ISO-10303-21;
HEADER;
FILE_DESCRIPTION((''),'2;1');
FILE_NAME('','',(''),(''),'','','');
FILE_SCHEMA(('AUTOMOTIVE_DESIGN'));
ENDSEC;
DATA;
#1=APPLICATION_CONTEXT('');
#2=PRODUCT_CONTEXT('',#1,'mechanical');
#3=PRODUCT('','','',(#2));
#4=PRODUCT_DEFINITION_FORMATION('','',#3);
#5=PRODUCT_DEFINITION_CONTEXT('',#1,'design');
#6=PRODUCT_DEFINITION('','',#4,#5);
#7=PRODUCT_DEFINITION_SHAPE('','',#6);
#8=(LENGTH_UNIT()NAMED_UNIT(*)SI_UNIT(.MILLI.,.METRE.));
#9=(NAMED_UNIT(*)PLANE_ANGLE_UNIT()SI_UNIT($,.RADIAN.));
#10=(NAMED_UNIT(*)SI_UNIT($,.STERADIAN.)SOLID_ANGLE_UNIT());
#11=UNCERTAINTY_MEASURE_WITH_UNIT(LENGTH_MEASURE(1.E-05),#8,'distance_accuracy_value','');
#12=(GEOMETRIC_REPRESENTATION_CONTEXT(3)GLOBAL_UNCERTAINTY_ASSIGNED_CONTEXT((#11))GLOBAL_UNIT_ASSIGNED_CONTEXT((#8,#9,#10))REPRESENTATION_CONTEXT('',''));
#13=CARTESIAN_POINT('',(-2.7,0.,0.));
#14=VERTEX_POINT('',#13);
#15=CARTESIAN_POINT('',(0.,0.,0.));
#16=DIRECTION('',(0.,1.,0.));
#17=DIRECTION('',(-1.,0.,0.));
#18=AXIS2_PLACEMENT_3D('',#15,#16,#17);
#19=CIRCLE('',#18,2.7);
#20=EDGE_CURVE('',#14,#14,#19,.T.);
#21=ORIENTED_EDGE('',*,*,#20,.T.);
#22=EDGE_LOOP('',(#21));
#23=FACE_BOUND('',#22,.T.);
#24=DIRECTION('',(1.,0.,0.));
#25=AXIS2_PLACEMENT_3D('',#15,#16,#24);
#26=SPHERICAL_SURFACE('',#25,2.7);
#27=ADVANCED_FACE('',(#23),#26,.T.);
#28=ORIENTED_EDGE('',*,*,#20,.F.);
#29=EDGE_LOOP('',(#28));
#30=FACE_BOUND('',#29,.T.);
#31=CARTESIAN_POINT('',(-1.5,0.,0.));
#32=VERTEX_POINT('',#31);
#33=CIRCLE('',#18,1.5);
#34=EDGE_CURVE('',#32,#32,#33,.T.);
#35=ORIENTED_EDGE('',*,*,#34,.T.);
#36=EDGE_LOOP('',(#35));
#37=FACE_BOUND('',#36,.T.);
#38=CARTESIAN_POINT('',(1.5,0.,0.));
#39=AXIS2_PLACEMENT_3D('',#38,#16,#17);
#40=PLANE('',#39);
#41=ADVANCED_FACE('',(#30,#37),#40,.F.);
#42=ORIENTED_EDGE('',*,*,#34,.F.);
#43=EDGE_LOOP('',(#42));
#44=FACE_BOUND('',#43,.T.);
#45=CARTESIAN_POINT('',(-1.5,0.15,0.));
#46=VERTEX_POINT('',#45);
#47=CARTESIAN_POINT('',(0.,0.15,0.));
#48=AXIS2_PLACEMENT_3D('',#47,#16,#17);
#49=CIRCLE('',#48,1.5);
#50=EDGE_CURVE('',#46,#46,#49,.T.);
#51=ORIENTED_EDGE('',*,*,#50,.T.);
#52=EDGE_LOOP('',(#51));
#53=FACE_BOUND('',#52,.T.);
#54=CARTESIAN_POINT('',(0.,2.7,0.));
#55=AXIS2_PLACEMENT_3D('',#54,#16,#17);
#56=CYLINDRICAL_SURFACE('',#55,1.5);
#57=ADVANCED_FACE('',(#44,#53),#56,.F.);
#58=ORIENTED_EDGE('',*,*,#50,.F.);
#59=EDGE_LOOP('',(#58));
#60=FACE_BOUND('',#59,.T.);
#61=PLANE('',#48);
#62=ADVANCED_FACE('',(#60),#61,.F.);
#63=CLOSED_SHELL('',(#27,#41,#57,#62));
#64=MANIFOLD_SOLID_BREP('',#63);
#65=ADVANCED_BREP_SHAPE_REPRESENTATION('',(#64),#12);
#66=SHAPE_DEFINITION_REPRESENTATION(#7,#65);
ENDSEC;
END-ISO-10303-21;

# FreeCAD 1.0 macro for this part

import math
import FreeCAD as App
import Part
import Sketcher
from FreeCAD import Vector

doc = App.newDocument("Part")
body = doc.addObject("PartDesign::Body", "Body")

sketch1 = body.newObject("Sketcher::SketchObject", "Sketch")
sketch1.AttachmentSupport = (doc.getObject("XY_Plane"), [""])
sketch1.MapMode = "FlatFace"
sketch1.addGeometry([
    Part.LineSegment(Vector(0, 2.7, 0), Vector(0, 0.15, 0)),
    Part.LineSegment(Vector(0, 0.15, 0), Vector(1.5, 0.15, 0)),
    Part.LineSegment(Vector(1.5, 0.15, 0), Vector(1.5, 0, 0)),
    Part.LineSegment(Vector(1.5, 0, 0), Vector(2.7, 0, 0)),
    Part.ArcOfCircle(Part.Circle(Vector(0, 0, 0), Vector(0, 0, 1), 2.7), math.radians(0), math.radians(90)),
], False)
sketch1.addConstraint([
    Sketcher.Constraint("Coincident", 0, 2, 1, 1),
    Sketcher.Constraint("Coincident", 1, 2, 2, 1),
    Sketcher.Constraint("Coincident", 2, 2, 3, 1),
    Sketcher.Constraint("Coincident", 3, 2, 4, 1),
    Sketcher.Constraint("Coincident", 4, 2, 0, 1),
    Sketcher.Constraint("Vertical", 0),
    Sketcher.Constraint("Horizontal", 1),
    Sketcher.Constraint("Vertical", 2),
    Sketcher.Constraint("Horizontal", 3),
    Sketcher.Constraint("Coincident", 4, 3, -1, 1),
    Sketcher.Constraint("PointOnObject", 0, 2, -2),
    Sketcher.Constraint("PointOnObject", 2, 2, -1),
    Sketcher.Constraint("Radius", 4, 2.7),
    Sketcher.Constraint("DistanceX", 1, 1, 1, 2, 1.5),
    Sketcher.Constraint("DistanceY", 0, 2, 0, 1, 2.55),
])
revolution = body.newObject("PartDesign::Revolution", "Revolution")
revolution.Profile = sketch1
revolution.ReferenceAxis = (sketch1, ["V_Axis"])
revolution.Angle = 360

doc.recompute()
